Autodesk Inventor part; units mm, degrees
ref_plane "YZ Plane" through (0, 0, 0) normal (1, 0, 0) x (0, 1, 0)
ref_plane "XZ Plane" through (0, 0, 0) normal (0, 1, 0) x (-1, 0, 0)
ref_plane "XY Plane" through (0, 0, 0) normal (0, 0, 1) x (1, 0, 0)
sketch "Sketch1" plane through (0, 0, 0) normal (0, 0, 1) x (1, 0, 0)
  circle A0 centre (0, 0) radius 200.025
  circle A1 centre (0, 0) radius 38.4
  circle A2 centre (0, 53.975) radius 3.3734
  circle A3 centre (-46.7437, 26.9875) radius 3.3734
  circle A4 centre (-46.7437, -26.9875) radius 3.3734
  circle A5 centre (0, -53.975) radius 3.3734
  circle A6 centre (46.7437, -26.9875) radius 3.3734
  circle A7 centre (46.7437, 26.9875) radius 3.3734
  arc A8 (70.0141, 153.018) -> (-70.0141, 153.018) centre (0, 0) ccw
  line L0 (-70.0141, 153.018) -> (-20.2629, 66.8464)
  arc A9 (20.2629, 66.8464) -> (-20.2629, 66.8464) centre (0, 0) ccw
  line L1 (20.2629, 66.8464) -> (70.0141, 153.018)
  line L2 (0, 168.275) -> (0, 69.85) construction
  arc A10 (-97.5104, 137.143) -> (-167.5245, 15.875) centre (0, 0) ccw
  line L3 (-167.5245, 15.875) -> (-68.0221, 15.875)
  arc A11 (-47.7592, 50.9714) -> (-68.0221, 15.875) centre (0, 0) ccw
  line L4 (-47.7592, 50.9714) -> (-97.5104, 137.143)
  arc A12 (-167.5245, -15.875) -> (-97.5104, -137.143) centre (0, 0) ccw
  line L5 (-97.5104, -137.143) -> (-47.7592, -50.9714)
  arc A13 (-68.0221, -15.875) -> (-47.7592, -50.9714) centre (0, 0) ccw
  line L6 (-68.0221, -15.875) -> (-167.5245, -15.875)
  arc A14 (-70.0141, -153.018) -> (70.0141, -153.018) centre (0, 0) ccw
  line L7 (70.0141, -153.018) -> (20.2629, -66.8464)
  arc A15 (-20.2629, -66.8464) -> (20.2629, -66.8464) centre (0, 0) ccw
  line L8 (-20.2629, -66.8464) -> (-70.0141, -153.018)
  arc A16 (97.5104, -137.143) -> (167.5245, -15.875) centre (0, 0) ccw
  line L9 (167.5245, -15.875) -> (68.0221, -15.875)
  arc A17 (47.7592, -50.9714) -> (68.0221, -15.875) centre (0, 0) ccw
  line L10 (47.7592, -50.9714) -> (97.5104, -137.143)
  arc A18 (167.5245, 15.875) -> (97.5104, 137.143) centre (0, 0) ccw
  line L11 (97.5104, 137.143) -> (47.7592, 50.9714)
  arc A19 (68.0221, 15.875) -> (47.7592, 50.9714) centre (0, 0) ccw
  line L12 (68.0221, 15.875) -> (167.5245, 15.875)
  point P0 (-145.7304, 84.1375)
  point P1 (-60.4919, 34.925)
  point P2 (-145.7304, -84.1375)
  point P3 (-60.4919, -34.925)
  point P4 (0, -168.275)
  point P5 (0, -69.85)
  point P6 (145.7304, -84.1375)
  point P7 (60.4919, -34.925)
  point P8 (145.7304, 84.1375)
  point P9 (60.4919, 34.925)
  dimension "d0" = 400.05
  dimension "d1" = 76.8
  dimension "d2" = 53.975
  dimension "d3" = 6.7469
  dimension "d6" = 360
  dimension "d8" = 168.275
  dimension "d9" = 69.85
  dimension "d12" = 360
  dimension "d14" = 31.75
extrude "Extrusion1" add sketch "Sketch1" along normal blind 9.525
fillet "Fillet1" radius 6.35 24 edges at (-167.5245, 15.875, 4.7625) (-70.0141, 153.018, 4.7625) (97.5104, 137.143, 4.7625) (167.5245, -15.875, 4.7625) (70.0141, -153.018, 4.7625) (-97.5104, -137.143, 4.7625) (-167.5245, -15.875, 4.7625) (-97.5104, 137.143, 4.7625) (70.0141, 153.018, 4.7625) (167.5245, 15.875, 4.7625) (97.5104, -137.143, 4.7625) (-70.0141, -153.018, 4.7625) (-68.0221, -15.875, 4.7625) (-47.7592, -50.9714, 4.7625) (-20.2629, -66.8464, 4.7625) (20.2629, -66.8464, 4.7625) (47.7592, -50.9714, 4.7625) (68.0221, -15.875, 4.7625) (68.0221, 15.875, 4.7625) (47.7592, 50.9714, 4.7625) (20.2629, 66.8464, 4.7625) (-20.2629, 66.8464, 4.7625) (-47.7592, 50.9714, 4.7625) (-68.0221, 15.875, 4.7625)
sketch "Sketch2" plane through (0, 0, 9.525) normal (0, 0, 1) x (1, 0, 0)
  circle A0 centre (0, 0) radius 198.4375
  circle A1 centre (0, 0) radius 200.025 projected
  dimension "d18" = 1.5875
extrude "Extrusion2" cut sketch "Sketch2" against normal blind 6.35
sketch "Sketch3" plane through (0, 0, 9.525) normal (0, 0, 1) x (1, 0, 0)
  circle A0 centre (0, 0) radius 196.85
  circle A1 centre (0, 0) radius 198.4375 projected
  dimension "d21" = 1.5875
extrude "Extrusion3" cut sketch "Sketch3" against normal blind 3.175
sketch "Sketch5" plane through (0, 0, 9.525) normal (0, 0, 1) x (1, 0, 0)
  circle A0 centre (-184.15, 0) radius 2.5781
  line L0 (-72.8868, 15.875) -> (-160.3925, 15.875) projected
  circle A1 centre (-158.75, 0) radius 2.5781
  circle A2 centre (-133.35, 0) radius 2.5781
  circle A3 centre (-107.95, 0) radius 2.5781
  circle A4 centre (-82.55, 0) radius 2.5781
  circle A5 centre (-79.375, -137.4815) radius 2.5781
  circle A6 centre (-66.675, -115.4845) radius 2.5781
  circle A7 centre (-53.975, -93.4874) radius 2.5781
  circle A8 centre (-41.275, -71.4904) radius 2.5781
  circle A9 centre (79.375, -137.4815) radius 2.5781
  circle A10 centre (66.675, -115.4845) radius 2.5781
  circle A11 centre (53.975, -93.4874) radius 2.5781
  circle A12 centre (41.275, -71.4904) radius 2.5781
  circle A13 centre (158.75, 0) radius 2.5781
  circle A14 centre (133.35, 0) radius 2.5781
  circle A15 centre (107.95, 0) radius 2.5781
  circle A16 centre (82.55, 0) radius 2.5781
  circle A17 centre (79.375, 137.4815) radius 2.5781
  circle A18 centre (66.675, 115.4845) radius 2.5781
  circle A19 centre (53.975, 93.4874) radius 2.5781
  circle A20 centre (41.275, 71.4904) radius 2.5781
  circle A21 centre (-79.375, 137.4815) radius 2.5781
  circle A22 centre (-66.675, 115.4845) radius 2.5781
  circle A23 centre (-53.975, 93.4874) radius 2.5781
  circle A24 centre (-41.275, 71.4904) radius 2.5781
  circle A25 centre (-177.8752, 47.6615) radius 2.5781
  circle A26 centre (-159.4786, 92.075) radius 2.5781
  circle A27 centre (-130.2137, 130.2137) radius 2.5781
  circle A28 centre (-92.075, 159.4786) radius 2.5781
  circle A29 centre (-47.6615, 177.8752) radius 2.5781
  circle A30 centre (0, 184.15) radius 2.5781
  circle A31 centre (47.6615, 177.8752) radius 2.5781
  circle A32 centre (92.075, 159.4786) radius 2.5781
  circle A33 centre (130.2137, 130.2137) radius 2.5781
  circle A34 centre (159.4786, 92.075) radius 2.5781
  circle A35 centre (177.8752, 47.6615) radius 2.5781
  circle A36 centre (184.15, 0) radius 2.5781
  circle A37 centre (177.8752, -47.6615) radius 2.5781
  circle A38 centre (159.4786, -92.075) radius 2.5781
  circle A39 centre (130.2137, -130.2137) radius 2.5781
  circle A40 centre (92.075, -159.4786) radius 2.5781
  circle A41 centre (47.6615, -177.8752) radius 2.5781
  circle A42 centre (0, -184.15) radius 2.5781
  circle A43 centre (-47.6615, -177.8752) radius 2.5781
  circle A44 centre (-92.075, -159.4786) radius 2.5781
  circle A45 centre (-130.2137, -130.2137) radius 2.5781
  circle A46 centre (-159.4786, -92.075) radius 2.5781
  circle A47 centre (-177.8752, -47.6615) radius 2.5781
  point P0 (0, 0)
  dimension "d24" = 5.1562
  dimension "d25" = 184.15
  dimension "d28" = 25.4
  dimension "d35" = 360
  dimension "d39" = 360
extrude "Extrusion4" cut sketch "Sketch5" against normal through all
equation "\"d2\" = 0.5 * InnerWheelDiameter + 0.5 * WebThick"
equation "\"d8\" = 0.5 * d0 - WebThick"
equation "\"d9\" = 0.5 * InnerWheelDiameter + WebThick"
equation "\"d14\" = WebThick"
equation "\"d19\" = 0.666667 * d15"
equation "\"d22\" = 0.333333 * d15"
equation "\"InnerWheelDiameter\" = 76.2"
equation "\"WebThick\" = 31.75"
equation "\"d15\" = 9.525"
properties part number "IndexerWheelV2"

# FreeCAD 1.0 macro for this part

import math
import FreeCAD as App
import Part
import Sketcher
Q = App.Units.Quantity


def edges_at(feature, points):
    """Names of the edges that pass closest to the given points."""
    edges = feature.Shape.Edges
    near = lambda p: min(range(len(edges)), key=lambda i: edges[i].distToShape(Part.Vertex(*p))[0])
    return sorted({f"Edge{near(p) + 1}" for p in points})

doc = App.newDocument("Part")
body = doc.addObject("PartDesign::Body", "Body")

sketch1 = doc.addObject("Sketcher::SketchObject", "Sketch")
body.addObject(sketch1)
sketch1.AttachmentSupport = (doc.XY_Plane, [""])
sketch1.MapMode = "FlatFace"
sketch1.addGeometry(Part.Circle(App.Vector(0, 0, 0), App.Vector(0, 0, 1), 200.025), False)
sketch1.addGeometry(Part.ArcOfCircle(Part.Circle(App.Vector(0, 0, 0), App.Vector(0, 0, 1), 168.27502), math.radians(-114.586685), math.radians(-65.413315)), False)
sketch1.addGeometry(Part.LineSegment(App.Vector(-70.0141, -153.018, 0), App.Vector(-20.2629, -66.8464, 0)), False)
sketch1.addGeometry(Part.ArcOfCircle(Part.Circle(App.Vector(0, 0, 0), App.Vector(0, 0, 1), 69.850027), math.radians(-106.863435), math.radians(-73.136565)), False)
sketch1.addGeometry(Part.LineSegment(App.Vector(20.2629, -66.8464, 0), App.Vector(70.0141, -153.018, 0)), False)
sketch1.addGeometry(Part.ArcOfCircle(Part.Circle(App.Vector(0, 0, 0), App.Vector(0, 0, 1), 168.27502), math.radians(-174.586688), math.radians(-125.413306)), False)
sketch1.addGeometry(Part.LineSegment(App.Vector(-167.5245, -15.875, 0), App.Vector(-68.0221, -15.875, 0)), False)
sketch1.addGeometry(Part.ArcOfCircle(Part.Circle(App.Vector(0, 0, 0), App.Vector(0, 0, 1), 69.850027), math.radians(-166.86344), math.radians(-133.136539)), False)
sketch1.addGeometry(Part.LineSegment(App.Vector(-47.7592, -50.9714, 0), App.Vector(-97.5104, -137.143, 0)), False)
sketch1.addGeometry(Part.Circle(App.Vector(0, -53.975, 0), App.Vector(0, 0, 1), 3.3734), False)
sketch1.addGeometry(Part.Circle(App.Vector(-46.7437, -26.9875, 0), App.Vector(0, 0, 1), 3.3734), False)
sketch1.addGeometry(Part.Circle(App.Vector(0, 0, 0), App.Vector(0, 0, 1), 38.4), False)
sketch1.addGeometry(Part.Circle(App.Vector(46.7437, -26.9875, 0), App.Vector(0, 0, 1), 3.3734), False)
sketch1.addGeometry(Part.ArcOfCircle(Part.Circle(App.Vector(0, 0, 0), App.Vector(0, 0, 1), 168.274994), math.radians(-54.586694), math.radians(-5.413312)), False)
sketch1.addGeometry(Part.LineSegment(App.Vector(97.5104, -137.143, 0), App.Vector(47.7592, -50.9714, 0)), False)
sketch1.addGeometry(Part.ArcOfCircle(Part.Circle(App.Vector(0, 0, 0), App.Vector(0, 0, 1), 69.849994), math.radians(-46.863461), math.radians(-13.13656)), False)
sketch1.addGeometry(Part.LineSegment(App.Vector(68.0221, -15.875, 0), App.Vector(167.5245, -15.875, 0)), False)
sketch1.addGeometry(Part.ArcOfCircle(Part.Circle(App.Vector(0, 0, 0), App.Vector(0, 0, 1), 168.274994), math.radians(125.413306), math.radians(174.586688)), False)
sketch1.addGeometry(Part.LineSegment(App.Vector(-97.5104, 137.143, 0), App.Vector(-47.7592, 50.9714, 0)), False)
sketch1.addGeometry(Part.ArcOfCircle(Part.Circle(App.Vector(0, 0, 0), App.Vector(0, 0, 1), 69.849994), math.radians(133.136539), math.radians(166.86344)), False)
sketch1.addGeometry(Part.LineSegment(App.Vector(-68.0221, 15.875, 0), App.Vector(-167.5245, 15.875, 0)), False)
sketch1.addGeometry(Part.Circle(App.Vector(-46.7437, 26.9875, 0), App.Vector(0, 0, 1), 3.3734), False)
sketch1.addGeometry(Part.Circle(App.Vector(0, 53.975, 0), App.Vector(0, 0, 1), 3.3734), False)
sketch1.addGeometry(Part.ArcOfCircle(Part.Circle(App.Vector(0, 0, 0), App.Vector(0, 0, 1), 168.27502), math.radians(65.413315), math.radians(114.586685)), False)
sketch1.addGeometry(Part.LineSegment(App.Vector(70.0141, 153.018, 0), App.Vector(20.2629, 66.8464, 0)), False)
sketch1.addGeometry(Part.ArcOfCircle(Part.Circle(App.Vector(0, 0, 0), App.Vector(0, 0, 1), 69.850027), math.radians(73.136565), math.radians(106.863435)), False)
sketch1.addGeometry(Part.LineSegment(App.Vector(-20.2629, 66.8464, 0), App.Vector(-70.0141, 153.018, 0)), False)
sketch1.addGeometry(Part.Circle(App.Vector(46.7437, 26.9875, 0), App.Vector(0, 0, 1), 3.3734), False)
sketch1.addGeometry(Part.ArcOfCircle(Part.Circle(App.Vector(0, 0, 0), App.Vector(0, 0, 1), 168.27502), math.radians(5.413312), math.radians(54.586694)), False)
sketch1.addGeometry(Part.LineSegment(App.Vector(167.5245, 15.875, 0), App.Vector(68.0221, 15.875, 0)), False)
sketch1.addGeometry(Part.ArcOfCircle(Part.Circle(App.Vector(0, 0, 0), App.Vector(0, 0, 1), 69.850027), math.radians(13.13656), math.radians(46.863461)), False)
sketch1.addGeometry(Part.LineSegment(App.Vector(47.7592, 50.9714, 0), App.Vector(97.5104, 137.143, 0)), False)
sketch1.addConstraint(Sketcher.Constraint("Coincident", 1, 1, 2, 1))
sketch1.addConstraint(Sketcher.Constraint("Coincident", 2, 2, 3, 1))
sketch1.addConstraint(Sketcher.Constraint("Coincident", 3, 2, 4, 1))
sketch1.addConstraint(Sketcher.Constraint("Coincident", 4, 2, 1, 2))
sketch1.addConstraint(Sketcher.Constraint("Coincident", 5, 1, 6, 1))
sketch1.addConstraint(Sketcher.Constraint("Coincident", 6, 2, 7, 1))
sketch1.addConstraint(Sketcher.Constraint("Coincident", 7, 2, 8, 1))
sketch1.addConstraint(Sketcher.Constraint("Coincident", 8, 2, 5, 2))
sketch1.addConstraint(Sketcher.Constraint("Coincident", 13, 1, 14, 1))
sketch1.addConstraint(Sketcher.Constraint("Coincident", 14, 2, 15, 1))
sketch1.addConstraint(Sketcher.Constraint("Coincident", 15, 2, 16, 1))
sketch1.addConstraint(Sketcher.Constraint("Coincident", 16, 2, 13, 2))
sketch1.addConstraint(Sketcher.Constraint("Coincident", 17, 1, 18, 1))
sketch1.addConstraint(Sketcher.Constraint("Coincident", 18, 2, 19, 1))
sketch1.addConstraint(Sketcher.Constraint("Coincident", 19, 2, 20, 1))
sketch1.addConstraint(Sketcher.Constraint("Coincident", 20, 2, 17, 2))
sketch1.addConstraint(Sketcher.Constraint("Coincident", 23, 1, 24, 1))
sketch1.addConstraint(Sketcher.Constraint("Coincident", 24, 2, 25, 1))
sketch1.addConstraint(Sketcher.Constraint("Coincident", 25, 2, 26, 1))
sketch1.addConstraint(Sketcher.Constraint("Coincident", 26, 2, 23, 2))
sketch1.addConstraint(Sketcher.Constraint("Coincident", 28, 1, 29, 1))
sketch1.addConstraint(Sketcher.Constraint("Coincident", 29, 2, 30, 1))
sketch1.addConstraint(Sketcher.Constraint("Coincident", 30, 2, 31, 1))
sketch1.addConstraint(Sketcher.Constraint("Coincident", 31, 2, 28, 2))
sketch1.addConstraint(Sketcher.Constraint("Horizontal", 6))
sketch1.addConstraint(Sketcher.Constraint("Horizontal", 16))
sketch1.addConstraint(Sketcher.Constraint("Horizontal", 20))
sketch1.addConstraint(Sketcher.Constraint("Horizontal", 29))
sketch1.addConstraint(Sketcher.Constraint("Coincident", 0, 3, -1, 1))
sketch1.addConstraint(Sketcher.Constraint("Coincident", 1, 3, -1, 1))
sketch1.addConstraint(Sketcher.Constraint("Coincident", 3, 3, -1, 1))
sketch1.addConstraint(Sketcher.Constraint("Coincident", 5, 3, -1, 1))
sketch1.addConstraint(Sketcher.Constraint("Coincident", 7, 3, -1, 1))
sketch1.addConstraint(Sketcher.Constraint("Coincident", 11, 3, -1, 1))
sketch1.addConstraint(Sketcher.Constraint("Coincident", 13, 3, -1, 1))
sketch1.addConstraint(Sketcher.Constraint("Coincident", 15, 3, -1, 1))
sketch1.addConstraint(Sketcher.Constraint("Coincident", 17, 3, -1, 1))
sketch1.addConstraint(Sketcher.Constraint("Coincident", 19, 3, -1, 1))
sketch1.addConstraint(Sketcher.Constraint("Coincident", 23, 3, -1, 1))
sketch1.addConstraint(Sketcher.Constraint("Coincident", 25, 3, -1, 1))
sketch1.addConstraint(Sketcher.Constraint("Coincident", 28, 3, -1, 1))
sketch1.addConstraint(Sketcher.Constraint("Coincident", 30, 3, -1, 1))
sketch1.addConstraint(Sketcher.Constraint("Equal", 1, 5))
sketch1.addConstraint(Sketcher.Constraint("Equal", 3, 7))
sketch1.addConstraint(Sketcher.Constraint("Equal", 9, 10))
sketch1.addConstraint(Sketcher.Constraint("Equal", 10, 12))
sketch1.addConstraint(Sketcher.Constraint("Equal", 5, 13))
sketch1.addConstraint(Sketcher.Constraint("Equal", 7, 15))
sketch1.addConstraint(Sketcher.Constraint("Equal", 13, 17))
sketch1.addConstraint(Sketcher.Constraint("Equal", 15, 19))
sketch1.addConstraint(Sketcher.Constraint("Equal", 12, 21))
sketch1.addConstraint(Sketcher.Constraint("Equal", 21, 22))
sketch1.addConstraint(Sketcher.Constraint("Equal", 17, 23))
sketch1.addConstraint(Sketcher.Constraint("Equal", 19, 25))
sketch1.addConstraint(Sketcher.Constraint("Equal", 22, 27))
sketch1.addConstraint(Sketcher.Constraint("Equal", 23, 28))
sketch1.addConstraint(Sketcher.Constraint("Equal", 25, 30))
sketch1.addConstraint(Sketcher.Constraint("Symmetric", 12, 3, 21, 3, -1, 1))
sketch1.addConstraint(Sketcher.Constraint("Symmetric", 9, 3, 22, 3, -1, 1))
sketch1.addConstraint(Sketcher.Constraint("Symmetric", 10, 3, 27, 3, -1, 1))
sketch1.addConstraint(Sketcher.Constraint("Symmetric", 10, 3, 12, 3, -2))
sketch1.addConstraint(Sketcher.Constraint("PointOnObject", 9, 3, -2))
sketch1.addConstraint(Sketcher.Constraint("Parallel", 2, 8))
sketch1.addConstraint(Sketcher.Constraint("Parallel", 4, 14))
sketch1.addConstraint(Sketcher.Constraint("Parallel", 14, 18))
sketch1.addConstraint(Sketcher.Constraint("Parallel", 8, 24))
sketch1.addConstraint(Sketcher.Constraint("Parallel", 18, 26))
sketch1.addConstraint(Sketcher.Constraint("Parallel", 24, 31))
sketch1.addConstraint(Sketcher.Constraint("Horizontal", 2, 2, 3, 2))
sketch1.addConstraint(Sketcher.Constraint("Horizontal", 1, 1, 4, 2))
sketch1.addConstraint(Sketcher.Constraint("Horizontal", 8, 2, 13, 1))
sketch1.addConstraint(Sketcher.Constraint("Horizontal", 6, 2, 15, 2))
sketch1.addConstraint(Sketcher.Constraint("Horizontal", 24, 2, 25, 2))
sketch1.addConstraint(Sketcher.Constraint("Horizontal", 20, 2, 28, 1))
sketch1.addConstraint(Sketcher.Constraint("Horizontal", 18, 2, 30, 2))
sketch1.addConstraint(Sketcher.Constraint("Vertical", 8, 2, 17, 1))
sketch1.addConstraint(Sketcher.Constraint("Vertical", 6, 2, 19, 2))
sketch1.addConstraint(Sketcher.Constraint("Vertical", 4, 2, 23, 1))
sketch1.addConstraint(Sketcher.Constraint("Equal", 4, 8))
sketch1.addConstraint(Sketcher.Constraint("Diameter", 0, Q("15.75 in")))
sketch1.addConstraint(Sketcher.Constraint("Radius", 3, Q("2.75 in")))
sketch1.addConstraint(Sketcher.Constraint("Diameter", 9, Q("0.265622 in")))
sketch1.addConstraint(Sketcher.Constraint("Radius", 1, Q("6.625 in")))
sketch1.addConstraint(Sketcher.Constraint("Diameter", 11, 76.8))
sketch1.addConstraint(Sketcher.Constraint("DistanceY", 6, 2, 19, 2, Q("1.25 in")))
sketch1.addConstraint(Sketcher.Constraint("DistanceY", 9, 3, -1, 1, Q("2.125 in")))
sketch1.addConstraint(Sketcher.Constraint("Angle", 2, Q("60 deg")))
sketch1.addConstraint(Sketcher.Constraint("DistanceY", 10, 3, -1, 1, Q("1.0625 in")))
sketch1.addConstraint(Sketcher.Constraint("DistanceX", 8, 2, -1, 1, Q("3.839 in")))
sketch1.addConstraint(Sketcher.Constraint("DistanceX", 10, 3, -1, 1, Q("1.8403 in")))
pad1 = doc.addObject("PartDesign::Pad", "Pad")
body.addObject(pad1)
pad1.Profile = sketch1
pad1.Length = Q("0.375 in")
doc.recompute()

fillet = doc.addObject("PartDesign::Fillet", "Fillet")
body.addObject(fillet)
fillet.Base = (pad1, edges_at(pad1, [
    (-167.524, 15.875, 4.763),
    (-70.014, 153.018, 4.763),
    (97.51, 137.143, 4.763),
    (167.524, -15.875, 4.763),
    (70.014, -153.018, 4.763),
    (-97.51, -137.143, 4.763),
    (-167.524, -15.875, 4.763),
    (-97.51, 137.143, 4.763),
    (70.014, 153.018, 4.763),
    (167.524, 15.875, 4.763),
    (97.51, -137.143, 4.763),
    (-70.014, -153.018, 4.763),
    (-68.022, -15.875, 4.763),
    (-47.759, -50.971, 4.763),
    (-20.263, -66.846, 4.763),
    (20.263, -66.846, 4.763),
    (47.759, -50.971, 4.763),
    (68.022, -15.875, 4.763),
    (68.022, 15.875, 4.763),
    (47.759, 50.971, 4.763),
    (20.263, 66.846, 4.763),
    (-20.263, 66.846, 4.763),
    (-47.759, 50.971, 4.763),
    (-68.022, 15.875, 4.763),
]))
fillet.Radius = Q("0.25 in")

sketch2 = doc.addObject("Sketcher::SketchObject", "Sketch001")
body.addObject(sketch2)
sketch2.AttachmentSupport = (doc.XY_Plane, [""])
sketch2.MapMode = "FlatFace"
sketch2.AttachmentOffset = App.Placement(App.Vector(0, 0, 0.375 * 25.4), App.Rotation())
sketch2.addGeometry(Part.Circle(App.Vector(0, 0, 0), App.Vector(0, 0, 1), 200.025), False)
sketch2.addGeometry(Part.Circle(App.Vector(0, 0, 0), App.Vector(0, 0, 1), 198.4375), False)
sketch2.addConstraint(Sketcher.Constraint("Coincident", 0, 3, -1, 1))
sketch2.addConstraint(Sketcher.Constraint("Coincident", 1, 3, -1, 1))
sketch2.addConstraint(Sketcher.Constraint("Diameter", 0, Q("15.75 in")))
sketch2.addConstraint(Sketcher.Constraint("Diameter", 1, Q("15.625 in")))
pocket1 = doc.addObject("PartDesign::Pocket", "Pocket")
body.addObject(pocket1)
pocket1.Profile = sketch2
pocket1.Length = Q("0.25 in")

sketch3 = doc.addObject("Sketcher::SketchObject", "Sketch002")
body.addObject(sketch3)
sketch3.AttachmentSupport = (doc.XY_Plane, [""])
sketch3.MapMode = "FlatFace"
sketch3.AttachmentOffset = App.Placement(App.Vector(0, 0, 0.375 * 25.4), App.Rotation())
sketch3.addGeometry(Part.Circle(App.Vector(0, 0, 0), App.Vector(0, 0, 1), 198.4375), False)
sketch3.addGeometry(Part.Circle(App.Vector(0, 0, 0), App.Vector(0, 0, 1), 196.85), False)
sketch3.addConstraint(Sketcher.Constraint("Coincident", 0, 3, -1, 1))
sketch3.addConstraint(Sketcher.Constraint("Coincident", 1, 3, -1, 1))
sketch3.addConstraint(Sketcher.Constraint("Diameter", 1, Q("15.5 in")))
sketch3.addConstraint(Sketcher.Constraint("Diameter", 0, Q("15.625 in")))
pocket2 = doc.addObject("PartDesign::Pocket", "Pocket001")
body.addObject(pocket2)
pocket2.Profile = sketch3
pocket2.Length = Q("0.125 in")

sketch4 = doc.addObject("Sketcher::SketchObject", "Sketch003")
body.addObject(sketch4)
sketch4.AttachmentSupport = (doc.XY_Plane, [""])
sketch4.MapMode = "FlatFace"
sketch4.AttachmentOffset = App.Placement(App.Vector(0, 0, 0.375 * 25.4), App.Rotation())
sketch4.addGeometry(Part.Circle(App.Vector(-184.15, 0, 0), App.Vector(0, 0, 1), 2.5781), False)
sketch4.addGeometry(Part.Circle(App.Vector(-158.75, 0, 0), App.Vector(0, 0, 1), 2.5781), False)
sketch4.addGeometry(Part.Circle(App.Vector(-133.35, 0, 0), App.Vector(0, 0, 1), 2.5781), False)
sketch4.addGeometry(Part.Circle(App.Vector(-107.95, 0, 0), App.Vector(0, 0, 1), 2.5781), False)
sketch4.addGeometry(Part.Circle(App.Vector(-82.55, 0, 0), App.Vector(0, 0, 1), 2.5781), False)
sketch4.addGeometry(Part.Circle(App.Vector(-79.375, -137.4815, 0), App.Vector(0, 0, 1), 2.5781), False)
sketch4.addGeometry(Part.Circle(App.Vector(-66.675, -115.4845, 0), App.Vector(0, 0, 1), 2.5781), False)
sketch4.addGeometry(Part.Circle(App.Vector(-53.975, -93.4874, 0), App.Vector(0, 0, 1), 2.5781), False)
sketch4.addGeometry(Part.Circle(App.Vector(-41.275, -71.4904, 0), App.Vector(0, 0, 1), 2.5781), False)
sketch4.addGeometry(Part.Circle(App.Vector(79.375, -137.4815, 0), App.Vector(0, 0, 1), 2.5781), False)
sketch4.addGeometry(Part.Circle(App.Vector(66.675, -115.4845, 0), App.Vector(0, 0, 1), 2.5781), False)
sketch4.addGeometry(Part.Circle(App.Vector(53.975, -93.4874, 0), App.Vector(0, 0, 1), 2.5781), False)
sketch4.addGeometry(Part.Circle(App.Vector(41.275, -71.4904, 0), App.Vector(0, 0, 1), 2.5781), False)
sketch4.addGeometry(Part.Circle(App.Vector(158.75, 0, 0), App.Vector(0, 0, 1), 2.5781), False)
sketch4.addGeometry(Part.Circle(App.Vector(133.35, 0, 0), App.Vector(0, 0, 1), 2.5781), False)
sketch4.addGeometry(Part.Circle(App.Vector(107.95, 0, 0), App.Vector(0, 0, 1), 2.5781), False)
sketch4.addGeometry(Part.Circle(App.Vector(82.55, 0, 0), App.Vector(0, 0, 1), 2.5781), False)
sketch4.addGeometry(Part.Circle(App.Vector(79.375, 137.4815, 0), App.Vector(0, 0, 1), 2.5781), False)
sketch4.addGeometry(Part.Circle(App.Vector(66.675, 115.4845, 0), App.Vector(0, 0, 1), 2.5781), False)
sketch4.addGeometry(Part.Circle(App.Vector(53.975, 93.4874, 0), App.Vector(0, 0, 1), 2.5781), False)
sketch4.addGeometry(Part.Circle(App.Vector(41.275, 71.4904, 0), App.Vector(0, 0, 1), 2.5781), False)
sketch4.addGeometry(Part.Circle(App.Vector(-79.375, 137.4815, 0), App.Vector(0, 0, 1), 2.5781), False)
sketch4.addGeometry(Part.Circle(App.Vector(-66.675, 115.4845, 0), App.Vector(0, 0, 1), 2.5781), False)
sketch4.addGeometry(Part.Circle(App.Vector(-53.975, 93.4874, 0), App.Vector(0, 0, 1), 2.5781), False)
sketch4.addGeometry(Part.Circle(App.Vector(-41.275, 71.4904, 0), App.Vector(0, 0, 1), 2.5781), False)
sketch4.addGeometry(Part.Circle(App.Vector(-177.8752, 47.6615, 0), App.Vector(0, 0, 1), 2.5781), False)
sketch4.addGeometry(Part.Circle(App.Vector(-159.4786, 92.075, 0), App.Vector(0, 0, 1), 2.5781), False)
sketch4.addGeometry(Part.Circle(App.Vector(-130.2137, 130.2137, 0), App.Vector(0, 0, 1), 2.5781), False)
sketch4.addGeometry(Part.Circle(App.Vector(-92.075, 159.4786, 0), App.Vector(0, 0, 1), 2.5781), False)
sketch4.addGeometry(Part.Circle(App.Vector(-47.6615, 177.8752, 0), App.Vector(0, 0, 1), 2.5781), False)
sketch4.addGeometry(Part.Circle(App.Vector(0, 184.15, 0), App.Vector(0, 0, 1), 2.5781), False)
sketch4.addGeometry(Part.Circle(App.Vector(47.6615, 177.8752, 0), App.Vector(0, 0, 1), 2.5781), False)
sketch4.addGeometry(Part.Circle(App.Vector(92.075, 159.4786, 0), App.Vector(0, 0, 1), 2.5781), False)
sketch4.addGeometry(Part.Circle(App.Vector(130.2137, 130.2137, 0), App.Vector(0, 0, 1), 2.5781), False)
sketch4.addGeometry(Part.Circle(App.Vector(159.4786, 92.075, 0), App.Vector(0, 0, 1), 2.5781), False)
sketch4.addGeometry(Part.Circle(App.Vector(177.8752, 47.6615, 0), App.Vector(0, 0, 1), 2.5781), False)
sketch4.addGeometry(Part.Circle(App.Vector(184.15, 0, 0), App.Vector(0, 0, 1), 2.5781), False)
sketch4.addGeometry(Part.Circle(App.Vector(177.8752, -47.6615, 0), App.Vector(0, 0, 1), 2.5781), False)
sketch4.addGeometry(Part.Circle(App.Vector(159.4786, -92.075, 0), App.Vector(0, 0, 1), 2.5781), False)
sketch4.addGeometry(Part.Circle(App.Vector(130.2137, -130.2137, 0), App.Vector(0, 0, 1), 2.5781), False)
sketch4.addGeometry(Part.Circle(App.Vector(92.075, -159.4786, 0), App.Vector(0, 0, 1), 2.5781), False)
sketch4.addGeometry(Part.Circle(App.Vector(47.6615, -177.8752, 0), App.Vector(0, 0, 1), 2.5781), False)
sketch4.addGeometry(Part.Circle(App.Vector(0, -184.15, 0), App.Vector(0, 0, 1), 2.5781), False)
sketch4.addGeometry(Part.Circle(App.Vector(-47.6615, -177.8752, 0), App.Vector(0, 0, 1), 2.5781), False)
sketch4.addGeometry(Part.Circle(App.Vector(-92.075, -159.4786, 0), App.Vector(0, 0, 1), 2.5781), False)
sketch4.addGeometry(Part.Circle(App.Vector(-130.2137, -130.2137, 0), App.Vector(0, 0, 1), 2.5781), False)
sketch4.addGeometry(Part.Circle(App.Vector(-159.4786, -92.075, 0), App.Vector(0, 0, 1), 2.5781), False)
sketch4.addGeometry(Part.Circle(App.Vector(-177.8752, -47.6615, 0), App.Vector(0, 0, 1), 2.5781), False)
sketch4.addConstraint(Sketcher.Constraint("Equal", 0, 1))
sketch4.addConstraint(Sketcher.Constraint("Equal", 1, 2))
sketch4.addConstraint(Sketcher.Constraint("Equal", 2, 3))
sketch4.addConstraint(Sketcher.Constraint("Equal", 3, 4))
sketch4.addConstraint(Sketcher.Constraint("Equal", 4, 5))
sketch4.addConstraint(Sketcher.Constraint("Equal", 5, 6))
sketch4.addConstraint(Sketcher.Constraint("Equal", 6, 7))
sketch4.addConstraint(Sketcher.Constraint("Equal", 7, 8))
sketch4.addConstraint(Sketcher.Constraint("Equal", 8, 9))
sketch4.addConstraint(Sketcher.Constraint("Equal", 9, 10))
sketch4.addConstraint(Sketcher.Constraint("Equal", 10, 11))
sketch4.addConstraint(Sketcher.Constraint("Equal", 11, 12))
sketch4.addConstraint(Sketcher.Constraint("Equal", 12, 13))
sketch4.addConstraint(Sketcher.Constraint("Equal", 13, 14))
sketch4.addConstraint(Sketcher.Constraint("Equal", 14, 15))
sketch4.addConstraint(Sketcher.Constraint("Equal", 15, 16))
sketch4.addConstraint(Sketcher.Constraint("Equal", 16, 17))
sketch4.addConstraint(Sketcher.Constraint("Equal", 17, 18))
sketch4.addConstraint(Sketcher.Constraint("Equal", 18, 19))
sketch4.addConstraint(Sketcher.Constraint("Equal", 19, 20))
sketch4.addConstraint(Sketcher.Constraint("Equal", 20, 21))
sketch4.addConstraint(Sketcher.Constraint("Equal", 21, 22))
sketch4.addConstraint(Sketcher.Constraint("Equal", 22, 23))
sketch4.addConstraint(Sketcher.Constraint("Equal", 23, 24))
sketch4.addConstraint(Sketcher.Constraint("Equal", 24, 25))
sketch4.addConstraint(Sketcher.Constraint("Equal", 25, 26))
sketch4.addConstraint(Sketcher.Constraint("Equal", 26, 27))
sketch4.addConstraint(Sketcher.Constraint("Equal", 27, 28))
sketch4.addConstraint(Sketcher.Constraint("Equal", 28, 29))
sketch4.addConstraint(Sketcher.Constraint("Equal", 29, 30))
sketch4.addConstraint(Sketcher.Constraint("Equal", 30, 31))
sketch4.addConstraint(Sketcher.Constraint("Equal", 31, 32))
sketch4.addConstraint(Sketcher.Constraint("Equal", 32, 33))
sketch4.addConstraint(Sketcher.Constraint("Equal", 33, 34))
sketch4.addConstraint(Sketcher.Constraint("Equal", 34, 35))
sketch4.addConstraint(Sketcher.Constraint("Equal", 35, 36))
sketch4.addConstraint(Sketcher.Constraint("Equal", 36, 37))
sketch4.addConstraint(Sketcher.Constraint("Equal", 37, 38))
sketch4.addConstraint(Sketcher.Constraint("Equal", 38, 39))
sketch4.addConstraint(Sketcher.Constraint("Equal", 39, 40))
sketch4.addConstraint(Sketcher.Constraint("Equal", 40, 41))
sketch4.addConstraint(Sketcher.Constraint("Equal", 41, 42))
sketch4.addConstraint(Sketcher.Constraint("Equal", 42, 43))
sketch4.addConstraint(Sketcher.Constraint("Equal", 43, 44))
sketch4.addConstraint(Sketcher.Constraint("Equal", 44, 45))
sketch4.addConstraint(Sketcher.Constraint("Equal", 45, 46))
sketch4.addConstraint(Sketcher.Constraint("Equal", 46, 47))
sketch4.addConstraint(Sketcher.Constraint("Symmetric", 1, 3, 13, 3, -1, 1))
sketch4.addConstraint(Sketcher.Constraint("Symmetric", 2, 3, 14, 3, -1, 1))
sketch4.addConstraint(Sketcher.Constraint("Symmetric", 3, 3, 15, 3, -1, 1))
sketch4.addConstraint(Sketcher.Constraint("Symmetric", 4, 3, 16, 3, -1, 1))
sketch4.addConstraint(Sketcher.Constraint("Symmetric", 5, 3, 17, 3, -1, 1))
sketch4.addConstraint(Sketcher.Constraint("Symmetric", 6, 3, 18, 3, -1, 1))
sketch4.addConstraint(Sketcher.Constraint("Symmetric", 7, 3, 19, 3, -1, 1))
sketch4.addConstraint(Sketcher.Constraint("Symmetric", 8, 3, 20, 3, -1, 1))
sketch4.addConstraint(Sketcher.Constraint("Symmetric", 9, 3, 21, 3, -1, 1))
sketch4.addConstraint(Sketcher.Constraint("Symmetric", 10, 3, 22, 3, -1, 1))
sketch4.addConstraint(Sketcher.Constraint("Symmetric", 11, 3, 23, 3, -1, 1))
sketch4.addConstraint(Sketcher.Constraint("Symmetric", 12, 3, 24, 3, -1, 1))
sketch4.addConstraint(Sketcher.Constraint("Symmetric", 0, 3, 36, 3, -1, 1))
sketch4.addConstraint(Sketcher.Constraint("Symmetric", 25, 3, 37, 3, -1, 1))
sketch4.addConstraint(Sketcher.Constraint("Symmetric", 26, 3, 38, 3, -1, 1))
sketch4.addConstraint(Sketcher.Constraint("Symmetric", 27, 3, 39, 3, -1, 1))
sketch4.addConstraint(Sketcher.Constraint("Symmetric", 28, 3, 40, 3, -1, 1))
sketch4.addConstraint(Sketcher.Constraint("Symmetric", 29, 3, 41, 3, -1, 1))
sketch4.addConstraint(Sketcher.Constraint("Symmetric", 30, 3, 42, 3, -1, 1))
sketch4.addConstraint(Sketcher.Constraint("Symmetric", 31, 3, 43, 3, -1, 1))
sketch4.addConstraint(Sketcher.Constraint("Symmetric", 32, 3, 44, 3, -1, 1))
sketch4.addConstraint(Sketcher.Constraint("Symmetric", 33, 3, 45, 3, -1, 1))
sketch4.addConstraint(Sketcher.Constraint("Symmetric", 34, 3, 46, 3, -1, 1))
sketch4.addConstraint(Sketcher.Constraint("Symmetric", 35, 3, 47, 3, -1, 1))
sketch4.addConstraint(Sketcher.Constraint("Symmetric", 5, 3, 9, 3, -2))
sketch4.addConstraint(Sketcher.Constraint("Symmetric", 6, 3, 10, 3, -2))
sketch4.addConstraint(Sketcher.Constraint("Symmetric", 7, 3, 11, 3, -2))
sketch4.addConstraint(Sketcher.Constraint("Symmetric", 8, 3, 12, 3, -2))
sketch4.addConstraint(Sketcher.Constraint("Symmetric", 29, 3, 31, 3, -2))
sketch4.addConstraint(Sketcher.Constraint("Symmetric", 28, 3, 32, 3, -2))
sketch4.addConstraint(Sketcher.Constraint("Symmetric", 27, 3, 33, 3, -2))
sketch4.addConstraint(Sketcher.Constraint("Symmetric", 26, 3, 34, 3, -2))
sketch4.addConstraint(Sketcher.Constraint("Symmetric", 25, 3, 35, 3, -2))
sketch4.addConstraint(Sketcher.Constraint("PointOnObject", 0, 3, -1))
sketch4.addConstraint(Sketcher.Constraint("PointOnObject", 1, 3, -1))
sketch4.addConstraint(Sketcher.Constraint("PointOnObject", 2, 3, -1))
sketch4.addConstraint(Sketcher.Constraint("PointOnObject", 3, 3, -1))
sketch4.addConstraint(Sketcher.Constraint("PointOnObject", 4, 3, -1))
sketch4.addConstraint(Sketcher.Constraint("PointOnObject", 30, 3, -2))
sketch4.addConstraint(Sketcher.Constraint("Diameter", 0, Q("0.203 in")))
sketch4.addConstraint(Sketcher.Constraint("DistanceX", 0, 3, 1, 3, Q("1 in")))
sketch4.addConstraint(Sketcher.Constraint("DistanceX", 1, 3, 2, 3, Q("1 in")))
sketch4.addConstraint(Sketcher.Constraint("DistanceX", 2, 3, 3, 3, Q("1 in")))
sketch4.addConstraint(Sketcher.Constraint("DistanceX", 3, 3, 4, 3, Q("1 in")))
sketch4.addConstraint(Sketcher.Constraint("DistanceX", 5, 3, 7, 3, Q("1 in")))
sketch4.addConstraint(Sketcher.Constraint("DistanceX", 6, 3, 8, 3, Q("1 in")))
sketch4.addConstraint(Sketcher.Constraint("DistanceX", 28, 3, 22, 3, Q("1 in")))
sketch4.addConstraint(Sketcher.Constraint("DistanceX", 0, 3, -1, 1, Q("7.25 in")))
sketch4.addConstraint(Sketcher.Constraint("DistanceY", -1, 1, 30, 3, Q("7.25 in")))
sketch4.addConstraint(Sketcher.Constraint("DistanceX", 5, 3, 6, 3, Q("0.5 in")))
sketch4.addConstraint(Sketcher.Constraint("DistanceX", 8, 3, 9, 3, Q("4.75 in")))
sketch4.addConstraint(Sketcher.Constraint("DistanceY", -1, 1, 26, 3, Q("3.625 in")))
sketch4.addConstraint(Sketcher.Constraint("DistanceY", 7, 3, -1, 1, Q("3.6806 in")))
sketch4.addConstraint(Sketcher.Constraint("DistanceY", 22, 3, 27, 3, Q("0.5799 in")))
sketch4.addConstraint(Sketcher.Constraint("DistanceY", 21, 3, 29, 3, Q("1.5903 in")))
sketch4.addConstraint(Sketcher.Constraint("DistanceY", 5, 3, -1, 1, 137.4815))
sketch4.addConstraint(Sketcher.Constraint("DistanceY", 6, 3, -1, 1, 115.4845))
sketch4.addConstraint(Sketcher.Constraint("DistanceY", 8, 3, -1, 1, 71.4904))
sketch4.addConstraint(Sketcher.Constraint("DistanceX", 25, 3, -1, 1, 177.8752))
sketch4.addConstraint(Sketcher.Constraint("DistanceY", -1, 1, 25, 3, 47.6615))
sketch4.addConstraint(Sketcher.Constraint("DistanceX", 26, 3, -1, 1, 159.4786))
sketch4.addConstraint(Sketcher.Constraint("DistanceX", 27, 3, -1, 1, 130.2137))
sketch4.addConstraint(Sketcher.Constraint("DistanceY", -1, 1, 28, 3, 159.4786))
sketch4.addConstraint(Sketcher.Constraint("DistanceX", 29, 3, -1, 1, 47.6615))
pocket3 = doc.addObject("PartDesign::Pocket", "Pocket002")
body.addObject(pocket3)
pocket3.Profile = sketch4
pocket3.Type = "ThroughAll"

doc.recompute()
